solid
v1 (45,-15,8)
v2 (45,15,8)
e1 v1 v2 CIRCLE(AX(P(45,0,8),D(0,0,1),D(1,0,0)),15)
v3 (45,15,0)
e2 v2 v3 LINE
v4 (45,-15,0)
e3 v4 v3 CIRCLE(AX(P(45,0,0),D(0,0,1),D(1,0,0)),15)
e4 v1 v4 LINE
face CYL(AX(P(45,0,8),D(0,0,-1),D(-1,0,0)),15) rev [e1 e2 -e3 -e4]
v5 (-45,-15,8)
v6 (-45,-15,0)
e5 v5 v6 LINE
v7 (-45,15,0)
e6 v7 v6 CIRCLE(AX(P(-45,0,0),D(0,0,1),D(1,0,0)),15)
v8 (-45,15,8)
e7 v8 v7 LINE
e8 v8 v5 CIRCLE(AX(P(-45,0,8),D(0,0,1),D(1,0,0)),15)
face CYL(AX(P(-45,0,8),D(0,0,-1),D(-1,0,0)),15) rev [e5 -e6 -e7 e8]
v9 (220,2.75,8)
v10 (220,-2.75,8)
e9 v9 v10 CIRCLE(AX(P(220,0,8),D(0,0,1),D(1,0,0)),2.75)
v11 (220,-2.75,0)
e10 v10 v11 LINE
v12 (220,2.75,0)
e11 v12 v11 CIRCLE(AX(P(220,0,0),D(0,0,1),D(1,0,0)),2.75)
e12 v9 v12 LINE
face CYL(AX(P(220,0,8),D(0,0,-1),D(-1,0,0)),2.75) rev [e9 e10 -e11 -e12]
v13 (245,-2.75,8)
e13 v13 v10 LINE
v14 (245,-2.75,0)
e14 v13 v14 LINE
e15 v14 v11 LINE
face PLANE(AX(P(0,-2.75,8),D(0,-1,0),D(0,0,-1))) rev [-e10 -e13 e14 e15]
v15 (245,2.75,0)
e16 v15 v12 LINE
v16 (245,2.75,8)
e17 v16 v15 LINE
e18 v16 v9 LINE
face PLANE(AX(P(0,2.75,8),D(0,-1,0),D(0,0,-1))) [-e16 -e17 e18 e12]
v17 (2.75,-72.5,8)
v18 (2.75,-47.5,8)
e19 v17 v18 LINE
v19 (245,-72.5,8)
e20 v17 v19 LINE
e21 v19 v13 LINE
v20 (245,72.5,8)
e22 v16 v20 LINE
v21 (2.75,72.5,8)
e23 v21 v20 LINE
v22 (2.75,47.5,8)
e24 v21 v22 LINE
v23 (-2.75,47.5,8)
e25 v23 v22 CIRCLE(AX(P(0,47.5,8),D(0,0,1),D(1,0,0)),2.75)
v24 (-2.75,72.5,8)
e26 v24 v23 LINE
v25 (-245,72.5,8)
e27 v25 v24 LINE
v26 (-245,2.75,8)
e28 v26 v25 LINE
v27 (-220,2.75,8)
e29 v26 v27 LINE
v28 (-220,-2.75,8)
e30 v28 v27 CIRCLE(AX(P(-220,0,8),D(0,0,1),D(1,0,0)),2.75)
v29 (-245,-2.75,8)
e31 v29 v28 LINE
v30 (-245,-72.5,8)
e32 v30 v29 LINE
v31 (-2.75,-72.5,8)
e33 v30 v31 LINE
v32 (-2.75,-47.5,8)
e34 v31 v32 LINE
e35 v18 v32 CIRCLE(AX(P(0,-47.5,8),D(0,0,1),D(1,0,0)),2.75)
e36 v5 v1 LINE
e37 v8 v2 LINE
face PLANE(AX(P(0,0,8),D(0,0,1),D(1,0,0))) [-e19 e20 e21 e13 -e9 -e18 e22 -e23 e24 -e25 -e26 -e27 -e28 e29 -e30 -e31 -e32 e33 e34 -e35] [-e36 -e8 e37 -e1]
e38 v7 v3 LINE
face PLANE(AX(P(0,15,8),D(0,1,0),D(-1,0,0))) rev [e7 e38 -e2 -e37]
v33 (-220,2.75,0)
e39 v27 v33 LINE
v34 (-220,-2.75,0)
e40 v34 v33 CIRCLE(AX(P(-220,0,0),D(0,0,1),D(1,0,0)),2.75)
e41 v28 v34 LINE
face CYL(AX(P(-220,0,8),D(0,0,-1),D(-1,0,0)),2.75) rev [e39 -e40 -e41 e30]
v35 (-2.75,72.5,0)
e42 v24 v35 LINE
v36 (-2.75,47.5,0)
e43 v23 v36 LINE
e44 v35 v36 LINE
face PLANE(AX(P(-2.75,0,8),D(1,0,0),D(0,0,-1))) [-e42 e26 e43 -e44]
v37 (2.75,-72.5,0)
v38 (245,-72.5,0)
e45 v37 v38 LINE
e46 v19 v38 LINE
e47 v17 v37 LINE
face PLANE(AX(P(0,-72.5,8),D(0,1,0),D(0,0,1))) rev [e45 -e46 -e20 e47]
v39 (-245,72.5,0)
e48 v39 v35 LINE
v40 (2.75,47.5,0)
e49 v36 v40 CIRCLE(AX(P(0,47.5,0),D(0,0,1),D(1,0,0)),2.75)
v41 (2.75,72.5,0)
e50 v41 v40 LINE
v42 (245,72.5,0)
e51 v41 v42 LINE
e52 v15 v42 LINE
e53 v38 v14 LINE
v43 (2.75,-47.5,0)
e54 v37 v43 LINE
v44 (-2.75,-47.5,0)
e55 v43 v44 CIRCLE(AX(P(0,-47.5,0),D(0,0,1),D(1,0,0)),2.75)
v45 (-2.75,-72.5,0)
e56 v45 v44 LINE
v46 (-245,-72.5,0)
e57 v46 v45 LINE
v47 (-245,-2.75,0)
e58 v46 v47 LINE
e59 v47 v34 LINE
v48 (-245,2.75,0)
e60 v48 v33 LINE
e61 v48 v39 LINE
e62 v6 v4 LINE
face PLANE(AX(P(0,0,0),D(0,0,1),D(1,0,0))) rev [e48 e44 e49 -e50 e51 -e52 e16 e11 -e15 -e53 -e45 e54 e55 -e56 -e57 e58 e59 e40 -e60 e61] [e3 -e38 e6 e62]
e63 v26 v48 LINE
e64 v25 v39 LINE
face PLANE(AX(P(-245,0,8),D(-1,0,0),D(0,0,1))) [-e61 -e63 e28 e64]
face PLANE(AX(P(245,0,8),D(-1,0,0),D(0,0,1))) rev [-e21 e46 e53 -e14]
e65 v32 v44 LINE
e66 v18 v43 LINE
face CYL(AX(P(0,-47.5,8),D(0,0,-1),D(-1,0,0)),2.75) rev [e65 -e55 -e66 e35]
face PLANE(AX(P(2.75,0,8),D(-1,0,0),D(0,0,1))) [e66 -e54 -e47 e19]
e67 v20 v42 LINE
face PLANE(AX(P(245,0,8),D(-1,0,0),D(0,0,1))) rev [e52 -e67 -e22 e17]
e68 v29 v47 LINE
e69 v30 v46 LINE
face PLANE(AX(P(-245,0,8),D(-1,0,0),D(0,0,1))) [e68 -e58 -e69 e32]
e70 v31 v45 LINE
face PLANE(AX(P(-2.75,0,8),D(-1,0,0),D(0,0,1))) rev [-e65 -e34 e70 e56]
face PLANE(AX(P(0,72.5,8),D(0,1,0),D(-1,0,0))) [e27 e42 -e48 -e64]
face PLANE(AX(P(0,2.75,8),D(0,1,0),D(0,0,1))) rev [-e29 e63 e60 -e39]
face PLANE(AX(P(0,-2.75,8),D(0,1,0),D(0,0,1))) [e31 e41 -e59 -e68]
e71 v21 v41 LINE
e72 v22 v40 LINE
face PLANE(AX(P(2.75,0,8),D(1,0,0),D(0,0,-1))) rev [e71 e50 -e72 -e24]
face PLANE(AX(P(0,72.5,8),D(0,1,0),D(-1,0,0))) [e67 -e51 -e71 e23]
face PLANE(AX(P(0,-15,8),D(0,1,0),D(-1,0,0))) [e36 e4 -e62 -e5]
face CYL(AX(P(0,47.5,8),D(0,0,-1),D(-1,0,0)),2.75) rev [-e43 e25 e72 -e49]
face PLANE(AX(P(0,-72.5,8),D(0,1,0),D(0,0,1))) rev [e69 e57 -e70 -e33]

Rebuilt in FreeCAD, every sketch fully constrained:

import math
import FreeCAD as App
import Part
import Sketcher
from FreeCAD import Vector
Q = App.Units.Quantity

doc = App.newDocument("Part")
body = doc.addObject("PartDesign::Body", "Body")

sketch1 = doc.addObject("Sketcher::SketchObject", "Sketch")
body.addObject(sketch1)
sketch1.AttachmentSupport = (doc.XY_Plane, [""])
sketch1.MapMode = "FlatFace"
sketch1.addGeometry([
    Part.LineSegment(Vector(-245, -2.8, 0), Vector(-245, -72.5, 0)),
    Part.LineSegment(Vector(-245, -72.5, 0), Vector(-2.8, -72.5, 0)),
    Part.LineSegment(Vector(-2.8, -72.5, 0), Vector(-2.8, -47.5, 0)),
    Part.ArcOfCircle(Part.Circle(Vector(0, -47.5, 0), Vector(0, 0, 1), 2.8), math.radians(0), math.radians(180)),
    Part.LineSegment(Vector(2.8, -47.5, 0), Vector(2.8, -72.5, 0)),
    Part.LineSegment(Vector(2.8, -72.5, 0), Vector(245, -72.5, 0)),
    Part.LineSegment(Vector(245, -72.5, 0), Vector(245, -2.8, 0)),
    Part.LineSegment(Vector(245, -2.8, 0), Vector(220, -2.8, 0)),
    Part.ArcOfCircle(Part.Circle(Vector(220, 0, 0), Vector(0, 0, 1), 2.8), math.radians(90), math.radians(270)),
    Part.LineSegment(Vector(220, 2.8, 0), Vector(245, 2.8, 0)),
    Part.LineSegment(Vector(245, 2.8, 0), Vector(245, 72.5, 0)),
    Part.LineSegment(Vector(245, 72.5, 0), Vector(2.8, 72.5, 0)),
    Part.LineSegment(Vector(2.8, 72.5, 0), Vector(2.8, 47.5, 0)),
    Part.ArcOfCircle(Part.Circle(Vector(0, 47.5, 0), Vector(0, 0, 1), 2.8), math.radians(180), math.radians(360)),
    Part.LineSegment(Vector(-2.8, 47.5, 0), Vector(-2.8, 72.5, 0)),
    Part.LineSegment(Vector(-2.8, 72.5, 0), Vector(-245, 72.5, 0)),
    Part.LineSegment(Vector(-245, 72.5, 0), Vector(-245, 2.8, 0)),
    Part.LineSegment(Vector(-245, 2.8, 0), Vector(-220, 2.8, 0)),
    Part.ArcOfCircle(Part.Circle(Vector(-220, 0, 0), Vector(0, 0, 1), 2.8), math.radians(-90), math.radians(90)),
    Part.LineSegment(Vector(-220, -2.8, 0), Vector(-245, -2.8, 0)),
    Part.LineSegment(Vector(45, -15, 0), Vector(-45, -15, 0)),
    Part.ArcOfCircle(Part.Circle(Vector(-45, 0, 0), Vector(0, 0, 1), 15), math.radians(90), math.radians(270)),
    Part.LineSegment(Vector(-45, 15, 0), Vector(45, 15, 0)),
    Part.ArcOfCircle(Part.Circle(Vector(45, 0, 0), Vector(0, 0, 1), 15), math.radians(-90), math.radians(90)),
], False)
sketch1.addConstraint([
    Sketcher.Constraint("Coincident", 0, 2, 1, 1),
    Sketcher.Constraint("Coincident", 1, 2, 2, 1),
    Sketcher.Constraint("Tangent", 2, 2, 3, 2),
    Sketcher.Constraint("Tangent", 3, 1, 4, 1),
    Sketcher.Constraint("Coincident", 4, 2, 5, 1),
    Sketcher.Constraint("Coincident", 5, 2, 6, 1),
    Sketcher.Constraint("Coincident", 6, 2, 7, 1),
    Sketcher.Constraint("Tangent", 7, 2, 8, 2),
    Sketcher.Constraint("Tangent", 8, 1, 9, 1),
    Sketcher.Constraint("Coincident", 9, 2, 10, 1),
    Sketcher.Constraint("Coincident", 10, 2, 11, 1),
    Sketcher.Constraint("Coincident", 11, 2, 12, 1),
    Sketcher.Constraint("Tangent", 12, 2, 13, 2),
    Sketcher.Constraint("Tangent", 13, 1, 14, 1),
    Sketcher.Constraint("Coincident", 14, 2, 15, 1),
    Sketcher.Constraint("Coincident", 15, 2, 16, 1),
    Sketcher.Constraint("Coincident", 16, 2, 17, 1),
    Sketcher.Constraint("Tangent", 17, 2, 18, 2),
    Sketcher.Constraint("Tangent", 18, 1, 19, 1),
    Sketcher.Constraint("Coincident", 19, 2, 0, 1),
    Sketcher.Constraint("Tangent", 20, 2, 21, 2),
    Sketcher.Constraint("Tangent", 21, 1, 22, 1),
    Sketcher.Constraint("Tangent", 22, 2, 23, 2),
    Sketcher.Constraint("Tangent", 23, 1, 20, 1),
    Sketcher.Constraint("Vertical", 0),
    Sketcher.Constraint("Horizontal", 1),
    Sketcher.Constraint("Vertical", 2),
    Sketcher.Constraint("Vertical", 4),
    Sketcher.Constraint("Horizontal", 5),
    Sketcher.Constraint("Vertical", 6),
    Sketcher.Constraint("Horizontal", 7),
    Sketcher.Constraint("Horizontal", 9),
    Sketcher.Constraint("Vertical", 10),
    Sketcher.Constraint("Horizontal", 11),
    Sketcher.Constraint("Vertical", 12),
    Sketcher.Constraint("Vertical", 14),
    Sketcher.Constraint("Horizontal", 15),
    Sketcher.Constraint("Vertical", 16),
    Sketcher.Constraint("Horizontal", 17),
    Sketcher.Constraint("Horizontal", 19),
    Sketcher.Constraint("Horizontal", 20),
    Sketcher.Constraint("Horizontal", 22),
    Sketcher.Constraint("Equal", 3, 8),
    Sketcher.Constraint("Equal", 8, 13),
    Sketcher.Constraint("Equal", 13, 18),
    Sketcher.Constraint("Symmetric", 3, 3, 13, 3, -1, 1),
    Sketcher.Constraint("Symmetric", 8, 3, 18, 3, -1, 1),
    Sketcher.Constraint("Symmetric", 21, 3, 23, 3, -1, 1),
    Sketcher.Constraint("Symmetric", 0, 2, 10, 2, -1, 1),
    Sketcher.Constraint("Symmetric", 5, 2, 15, 2, -1, 1),
    Sketcher.Constraint("Symmetric", 1, 2, 4, 2, -2),
    Sketcher.Constraint("Symmetric", 9, 2, 16, 2, -2),
    Sketcher.Constraint("Equal", 19, 2),
    Sketcher.Constraint("Radius", 21, Q("15 mm")),
    Sketcher.Constraint("DistanceX", 7, 2, 7, 1, Q("25 mm")),
    Sketcher.Constraint("DistanceX", 20, 2, 20, 1, Q("90 mm")),
    Sketcher.Constraint("Radius", 3, Q("2.75 mm")),
    Sketcher.Constraint("DistanceX", -1, 1, 8, 3, Q("220 mm")),
    Sketcher.Constraint("DistanceY", 3, 3, 13, 3, Q("95 mm")),
])
pad1 = doc.addObject("PartDesign::Pad", "Pad")
body.addObject(pad1)
pad1.Profile = sketch1
pad1.Length = 8

doc.recompute()
